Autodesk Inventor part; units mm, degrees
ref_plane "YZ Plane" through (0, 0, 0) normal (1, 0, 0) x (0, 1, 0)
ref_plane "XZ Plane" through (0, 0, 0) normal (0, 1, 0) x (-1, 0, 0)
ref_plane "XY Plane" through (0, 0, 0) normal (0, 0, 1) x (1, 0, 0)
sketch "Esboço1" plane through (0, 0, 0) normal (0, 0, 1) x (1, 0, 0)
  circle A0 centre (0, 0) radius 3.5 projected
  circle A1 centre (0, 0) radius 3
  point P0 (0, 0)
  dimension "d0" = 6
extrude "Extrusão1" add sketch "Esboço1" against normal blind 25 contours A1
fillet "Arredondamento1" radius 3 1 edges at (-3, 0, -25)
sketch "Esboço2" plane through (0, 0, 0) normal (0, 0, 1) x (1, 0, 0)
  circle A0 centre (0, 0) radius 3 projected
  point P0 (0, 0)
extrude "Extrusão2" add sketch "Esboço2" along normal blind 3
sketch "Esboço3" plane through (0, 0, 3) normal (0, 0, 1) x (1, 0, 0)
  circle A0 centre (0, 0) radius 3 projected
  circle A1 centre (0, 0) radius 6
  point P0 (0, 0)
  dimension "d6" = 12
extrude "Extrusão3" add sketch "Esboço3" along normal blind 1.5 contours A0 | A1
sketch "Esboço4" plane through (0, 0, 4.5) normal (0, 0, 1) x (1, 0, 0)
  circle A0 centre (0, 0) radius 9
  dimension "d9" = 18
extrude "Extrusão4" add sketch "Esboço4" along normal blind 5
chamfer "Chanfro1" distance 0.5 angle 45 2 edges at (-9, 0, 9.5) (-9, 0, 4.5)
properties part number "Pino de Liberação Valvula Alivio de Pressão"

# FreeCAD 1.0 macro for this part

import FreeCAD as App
import Part
import Sketcher
from FreeCAD import Vector
Q = App.Units.Quantity


def edges_at(feature, points):
    """Names of the edges that pass closest to the given points."""
    edges = feature.Shape.Edges
    near = lambda p: min(range(len(edges)), key=lambda i: edges[i].distToShape(Part.Vertex(*p))[0])
    return sorted({f"Edge{near(p) + 1}" for p in points})

doc = App.newDocument("Part")
body = doc.addObject("PartDesign::Body", "Body")

# Sketch on XY plane
sketch1 = doc.addObject("Sketcher::SketchObject", "Sketch")
body.addObject(sketch1)
sketch1.AttachmentSupport = (doc.XY_Plane, [""])
sketch1.MapMode = "FlatFace"
sketch1.addGeometry(Part.Circle(Vector(0, 0, 0), Vector(0, 0, 1), 3), False)
sketch1.addConstraint(Sketcher.Constraint("Coincident", 0, 3, -1, 1))
sketch1.addConstraint(Sketcher.Constraint("Diameter", 0, Q("6 mm")))
pad1 = doc.addObject("PartDesign::Pad", "Pad")
body.addObject(pad1)
pad1.Profile = sketch1
pad1.Length = 25
pad1.Reversed = True
doc.recompute()

fillet = doc.addObject("PartDesign::Fillet", "Fillet")
body.addObject(fillet)
fillet.Base = (pad1, edges_at(pad1, [(-3, 0, -25)]))
fillet.Radius = 3

# Sketch on XY plane
sketch2 = doc.addObject("Sketcher::SketchObject", "Sketch001")
body.addObject(sketch2)
sketch2.AttachmentSupport = (doc.XY_Plane, [""])
sketch2.MapMode = "FlatFace"
sketch2.addGeometry(Part.Circle(Vector(0, 0, 0), Vector(0, 0, 1), 3), False)
sketch2.addConstraint(Sketcher.Constraint("Coincident", 0, 3, -1, 1))
sketch2.addConstraint(Sketcher.Constraint("Diameter", 0, Q("6 mm")))
pad2 = doc.addObject("PartDesign::Pad", "Pad001")
body.addObject(pad2)
pad2.Profile = sketch2
pad2.Length = 3

# Sketch on XY plane
sketch3 = doc.addObject("Sketcher::SketchObject", "Sketch002")
body.addObject(sketch3)
sketch3.AttachmentSupport = (doc.XY_Plane, [""])
sketch3.MapMode = "FlatFace"
sketch3.AttachmentOffset = App.Placement(Vector(0, 0, 3), App.Rotation())
sketch3.addGeometry(Part.Circle(Vector(0, 0, 0), Vector(0, 0, 1), 6), False)
sketch3.addConstraint(Sketcher.Constraint("Coincident", 0, 3, -1, 1))
sketch3.addConstraint(Sketcher.Constraint("Diameter", 0, Q("12 mm")))
pad3 = doc.addObject("PartDesign::Pad", "Pad002")
body.addObject(pad3)
pad3.Profile = sketch3
pad3.Length = 1.5

# Sketch on XY plane
sketch4 = doc.addObject("Sketcher::SketchObject", "Sketch003")
body.addObject(sketch4)
sketch4.AttachmentSupport = (doc.XY_Plane, [""])
sketch4.MapMode = "FlatFace"
sketch4.AttachmentOffset = App.Placement(Vector(0, 0, 4.5), App.Rotation())
sketch4.addGeometry(Part.Circle(Vector(0, 0, 0), Vector(0, 0, 1), 9), False)
sketch4.addConstraint(Sketcher.Constraint("Coincident", 0, 3, -1, 1))
sketch4.addConstraint(Sketcher.Constraint("Diameter", 0, Q("18 mm")))
pad4 = doc.addObject("PartDesign::Pad", "Pad003")
body.addObject(pad4)
pad4.Profile = sketch4
pad4.Length = 5
doc.recompute()

chamfer = doc.addObject("PartDesign::Chamfer", "Chamfer")
body.addObject(chamfer)
chamfer.Base = (pad4, edges_at(pad4, [(-9, 0, 9.5), (-9, 0, 4.5)]))
chamfer.Size = 0.5

doc.recompute()
